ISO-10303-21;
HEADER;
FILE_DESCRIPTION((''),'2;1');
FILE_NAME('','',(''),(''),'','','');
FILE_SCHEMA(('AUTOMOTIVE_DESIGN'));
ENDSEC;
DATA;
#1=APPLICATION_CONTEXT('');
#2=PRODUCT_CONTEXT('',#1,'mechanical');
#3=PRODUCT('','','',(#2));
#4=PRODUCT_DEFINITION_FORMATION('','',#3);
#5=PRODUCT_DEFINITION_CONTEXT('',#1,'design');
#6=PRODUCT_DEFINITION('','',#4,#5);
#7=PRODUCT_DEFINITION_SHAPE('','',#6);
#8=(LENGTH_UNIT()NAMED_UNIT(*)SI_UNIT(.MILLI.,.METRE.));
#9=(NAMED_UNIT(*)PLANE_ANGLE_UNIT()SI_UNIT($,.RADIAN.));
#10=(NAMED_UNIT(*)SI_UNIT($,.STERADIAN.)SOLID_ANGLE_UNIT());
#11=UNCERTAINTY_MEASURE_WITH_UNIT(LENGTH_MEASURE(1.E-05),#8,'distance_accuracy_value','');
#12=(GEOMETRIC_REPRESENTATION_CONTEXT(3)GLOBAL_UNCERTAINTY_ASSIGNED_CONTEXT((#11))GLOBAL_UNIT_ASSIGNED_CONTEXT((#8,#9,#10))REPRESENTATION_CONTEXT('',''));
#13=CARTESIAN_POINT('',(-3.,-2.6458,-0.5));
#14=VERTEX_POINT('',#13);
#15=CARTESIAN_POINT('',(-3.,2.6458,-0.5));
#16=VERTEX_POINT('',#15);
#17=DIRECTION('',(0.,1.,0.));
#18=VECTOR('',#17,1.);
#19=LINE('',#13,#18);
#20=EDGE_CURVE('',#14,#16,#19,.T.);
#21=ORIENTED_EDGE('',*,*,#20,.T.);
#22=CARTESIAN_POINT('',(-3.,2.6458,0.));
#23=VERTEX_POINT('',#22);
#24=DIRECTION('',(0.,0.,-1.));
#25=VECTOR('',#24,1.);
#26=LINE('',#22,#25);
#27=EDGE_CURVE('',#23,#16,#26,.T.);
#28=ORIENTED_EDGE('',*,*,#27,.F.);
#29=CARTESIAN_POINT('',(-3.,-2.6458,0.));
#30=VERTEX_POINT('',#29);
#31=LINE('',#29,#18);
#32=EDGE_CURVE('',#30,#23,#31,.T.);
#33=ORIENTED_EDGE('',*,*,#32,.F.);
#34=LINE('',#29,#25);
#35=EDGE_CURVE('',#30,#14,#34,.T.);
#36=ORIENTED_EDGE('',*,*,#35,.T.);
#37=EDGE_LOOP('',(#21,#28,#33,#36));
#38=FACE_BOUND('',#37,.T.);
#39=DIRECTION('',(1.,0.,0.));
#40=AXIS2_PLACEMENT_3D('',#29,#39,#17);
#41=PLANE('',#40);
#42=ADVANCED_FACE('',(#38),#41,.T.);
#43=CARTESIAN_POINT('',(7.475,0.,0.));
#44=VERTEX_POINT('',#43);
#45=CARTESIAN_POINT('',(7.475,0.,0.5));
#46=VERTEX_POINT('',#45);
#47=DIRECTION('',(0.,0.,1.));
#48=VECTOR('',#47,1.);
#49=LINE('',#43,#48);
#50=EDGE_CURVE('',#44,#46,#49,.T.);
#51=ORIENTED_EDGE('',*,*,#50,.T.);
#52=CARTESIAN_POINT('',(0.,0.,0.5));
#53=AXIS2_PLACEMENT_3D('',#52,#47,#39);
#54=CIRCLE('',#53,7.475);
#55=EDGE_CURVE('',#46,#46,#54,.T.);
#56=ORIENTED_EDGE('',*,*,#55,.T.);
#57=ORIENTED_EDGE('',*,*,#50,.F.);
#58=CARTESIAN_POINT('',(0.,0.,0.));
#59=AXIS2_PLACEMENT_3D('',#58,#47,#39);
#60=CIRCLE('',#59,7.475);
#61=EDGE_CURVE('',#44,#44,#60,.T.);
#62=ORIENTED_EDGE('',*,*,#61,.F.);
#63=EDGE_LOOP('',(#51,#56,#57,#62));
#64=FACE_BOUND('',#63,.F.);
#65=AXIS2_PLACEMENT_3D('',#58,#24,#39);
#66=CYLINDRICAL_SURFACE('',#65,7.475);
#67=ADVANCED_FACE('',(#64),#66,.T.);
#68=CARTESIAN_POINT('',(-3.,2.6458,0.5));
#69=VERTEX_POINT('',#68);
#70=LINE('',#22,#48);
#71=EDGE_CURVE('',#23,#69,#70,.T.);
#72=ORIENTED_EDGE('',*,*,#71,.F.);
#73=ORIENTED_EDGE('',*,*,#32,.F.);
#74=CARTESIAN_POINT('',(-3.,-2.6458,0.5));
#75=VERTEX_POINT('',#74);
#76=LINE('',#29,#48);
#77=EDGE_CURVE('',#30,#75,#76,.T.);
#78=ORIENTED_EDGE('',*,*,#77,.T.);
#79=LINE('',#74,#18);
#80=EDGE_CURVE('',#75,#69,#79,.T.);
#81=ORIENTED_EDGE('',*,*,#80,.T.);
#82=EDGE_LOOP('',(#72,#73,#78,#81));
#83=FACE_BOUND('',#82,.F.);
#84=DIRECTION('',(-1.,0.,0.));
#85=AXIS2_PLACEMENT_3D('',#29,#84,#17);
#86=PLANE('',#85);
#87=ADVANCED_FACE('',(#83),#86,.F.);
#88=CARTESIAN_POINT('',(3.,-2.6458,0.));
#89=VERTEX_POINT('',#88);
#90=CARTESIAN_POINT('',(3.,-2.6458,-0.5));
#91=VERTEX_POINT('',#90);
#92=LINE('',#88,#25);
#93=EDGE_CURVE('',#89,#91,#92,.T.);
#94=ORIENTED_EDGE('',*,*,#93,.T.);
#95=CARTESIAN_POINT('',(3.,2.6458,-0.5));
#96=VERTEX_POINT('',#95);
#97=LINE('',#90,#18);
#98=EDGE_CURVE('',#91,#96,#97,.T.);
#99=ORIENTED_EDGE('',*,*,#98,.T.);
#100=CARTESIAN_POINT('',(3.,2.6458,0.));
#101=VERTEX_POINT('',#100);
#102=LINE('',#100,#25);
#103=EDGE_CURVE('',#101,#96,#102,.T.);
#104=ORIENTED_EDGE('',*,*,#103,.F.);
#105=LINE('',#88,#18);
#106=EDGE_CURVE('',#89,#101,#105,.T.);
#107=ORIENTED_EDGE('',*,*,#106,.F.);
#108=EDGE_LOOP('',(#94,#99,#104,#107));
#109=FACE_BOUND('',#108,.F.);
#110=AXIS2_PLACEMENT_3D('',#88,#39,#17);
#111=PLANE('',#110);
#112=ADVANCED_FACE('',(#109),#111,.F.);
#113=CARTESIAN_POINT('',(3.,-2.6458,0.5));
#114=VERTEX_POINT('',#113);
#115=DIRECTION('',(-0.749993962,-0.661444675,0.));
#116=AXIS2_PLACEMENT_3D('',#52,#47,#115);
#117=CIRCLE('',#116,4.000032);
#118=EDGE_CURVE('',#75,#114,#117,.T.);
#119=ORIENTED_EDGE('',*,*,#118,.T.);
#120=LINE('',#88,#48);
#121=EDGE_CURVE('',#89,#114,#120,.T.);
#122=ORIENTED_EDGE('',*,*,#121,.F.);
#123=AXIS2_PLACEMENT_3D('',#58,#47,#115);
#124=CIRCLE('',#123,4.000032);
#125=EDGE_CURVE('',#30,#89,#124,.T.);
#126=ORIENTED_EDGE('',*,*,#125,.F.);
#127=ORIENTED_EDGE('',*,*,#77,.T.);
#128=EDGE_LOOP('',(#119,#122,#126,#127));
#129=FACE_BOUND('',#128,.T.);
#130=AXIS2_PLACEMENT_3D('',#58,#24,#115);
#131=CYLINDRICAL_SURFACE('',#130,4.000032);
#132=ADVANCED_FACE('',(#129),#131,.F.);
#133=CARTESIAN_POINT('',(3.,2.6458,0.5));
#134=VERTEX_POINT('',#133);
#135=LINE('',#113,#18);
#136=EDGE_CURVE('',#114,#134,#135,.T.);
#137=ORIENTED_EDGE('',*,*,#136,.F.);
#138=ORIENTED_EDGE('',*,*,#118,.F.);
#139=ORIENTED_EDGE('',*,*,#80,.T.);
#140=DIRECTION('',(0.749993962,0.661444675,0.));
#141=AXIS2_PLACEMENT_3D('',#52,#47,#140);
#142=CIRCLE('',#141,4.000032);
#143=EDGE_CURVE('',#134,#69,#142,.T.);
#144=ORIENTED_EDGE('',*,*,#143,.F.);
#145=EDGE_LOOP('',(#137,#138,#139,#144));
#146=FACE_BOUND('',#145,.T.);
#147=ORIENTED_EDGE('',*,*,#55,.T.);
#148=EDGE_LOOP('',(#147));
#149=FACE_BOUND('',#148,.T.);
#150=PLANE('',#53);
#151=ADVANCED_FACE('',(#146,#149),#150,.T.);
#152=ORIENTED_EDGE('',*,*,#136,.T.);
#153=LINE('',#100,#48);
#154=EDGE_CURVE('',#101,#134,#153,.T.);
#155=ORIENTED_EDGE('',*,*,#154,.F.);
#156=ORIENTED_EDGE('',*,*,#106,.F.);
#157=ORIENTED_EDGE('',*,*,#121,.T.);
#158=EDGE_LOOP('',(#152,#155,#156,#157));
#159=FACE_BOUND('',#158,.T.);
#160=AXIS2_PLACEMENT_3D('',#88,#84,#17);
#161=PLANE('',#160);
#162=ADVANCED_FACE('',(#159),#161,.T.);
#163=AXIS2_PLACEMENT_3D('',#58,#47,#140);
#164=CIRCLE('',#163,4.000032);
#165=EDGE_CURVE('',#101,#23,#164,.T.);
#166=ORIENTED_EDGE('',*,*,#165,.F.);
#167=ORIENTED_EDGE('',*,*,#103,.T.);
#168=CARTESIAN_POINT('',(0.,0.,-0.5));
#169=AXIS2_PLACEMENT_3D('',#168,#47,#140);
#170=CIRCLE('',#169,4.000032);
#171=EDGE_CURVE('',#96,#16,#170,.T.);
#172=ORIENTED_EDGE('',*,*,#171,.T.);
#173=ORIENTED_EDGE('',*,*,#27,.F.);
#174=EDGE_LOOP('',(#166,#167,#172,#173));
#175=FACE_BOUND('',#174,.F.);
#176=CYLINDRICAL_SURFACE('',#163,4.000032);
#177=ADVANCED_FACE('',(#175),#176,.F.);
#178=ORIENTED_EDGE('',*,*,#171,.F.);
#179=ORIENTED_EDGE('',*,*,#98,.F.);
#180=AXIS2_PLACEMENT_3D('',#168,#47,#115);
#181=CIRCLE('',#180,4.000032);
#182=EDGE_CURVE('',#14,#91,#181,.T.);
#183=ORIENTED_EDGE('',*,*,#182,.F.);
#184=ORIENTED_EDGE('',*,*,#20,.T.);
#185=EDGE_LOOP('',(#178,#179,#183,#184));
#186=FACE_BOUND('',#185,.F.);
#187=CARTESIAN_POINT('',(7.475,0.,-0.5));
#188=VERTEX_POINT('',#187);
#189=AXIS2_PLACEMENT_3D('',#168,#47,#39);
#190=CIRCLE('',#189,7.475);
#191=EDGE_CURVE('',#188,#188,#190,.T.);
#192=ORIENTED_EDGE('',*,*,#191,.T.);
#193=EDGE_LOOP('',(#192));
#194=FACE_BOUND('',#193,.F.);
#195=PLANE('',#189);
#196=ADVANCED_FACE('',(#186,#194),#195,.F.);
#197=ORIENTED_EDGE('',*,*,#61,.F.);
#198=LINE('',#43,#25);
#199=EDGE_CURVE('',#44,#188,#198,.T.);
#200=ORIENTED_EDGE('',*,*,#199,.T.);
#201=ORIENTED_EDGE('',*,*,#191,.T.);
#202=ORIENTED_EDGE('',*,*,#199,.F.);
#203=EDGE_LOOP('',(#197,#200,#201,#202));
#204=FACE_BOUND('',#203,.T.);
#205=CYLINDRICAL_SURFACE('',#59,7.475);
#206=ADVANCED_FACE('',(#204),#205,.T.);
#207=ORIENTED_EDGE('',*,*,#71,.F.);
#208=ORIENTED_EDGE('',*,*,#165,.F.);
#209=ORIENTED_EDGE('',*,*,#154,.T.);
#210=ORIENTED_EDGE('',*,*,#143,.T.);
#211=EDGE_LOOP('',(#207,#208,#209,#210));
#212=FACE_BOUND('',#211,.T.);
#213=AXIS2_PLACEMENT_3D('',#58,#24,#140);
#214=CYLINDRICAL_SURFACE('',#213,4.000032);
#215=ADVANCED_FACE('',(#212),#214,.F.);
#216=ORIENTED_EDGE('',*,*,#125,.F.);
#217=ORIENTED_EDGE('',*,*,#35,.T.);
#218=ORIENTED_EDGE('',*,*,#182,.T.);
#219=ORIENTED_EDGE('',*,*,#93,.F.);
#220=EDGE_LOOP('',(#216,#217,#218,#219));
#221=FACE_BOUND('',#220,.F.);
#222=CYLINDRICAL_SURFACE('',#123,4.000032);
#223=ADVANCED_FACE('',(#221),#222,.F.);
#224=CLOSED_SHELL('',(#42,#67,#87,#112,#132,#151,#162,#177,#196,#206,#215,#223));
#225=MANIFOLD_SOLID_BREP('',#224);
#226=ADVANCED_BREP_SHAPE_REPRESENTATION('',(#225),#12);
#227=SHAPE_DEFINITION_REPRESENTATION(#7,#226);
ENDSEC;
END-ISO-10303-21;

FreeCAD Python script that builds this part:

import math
import FreeCAD as App
import Part
import Sketcher

V = App.Vector

doc = App.newDocument("Part")
params = doc.addObject("Spreadsheet::Sheet", "Params")
for row, (alias, value) in enumerate([
    ("sketch1_radius", "4 mm"),
    ("sketch1_diameter", "14.95 mm"),
    ("pad1_length", "1 mm"),
], start=1):
    params.set(f"A{row}", alias)
    params.set(f"B{row}", "=" + value)
    params.setAlias(f"B{row}", alias)

body = doc.addObject("PartDesign::Body", "Body")

# Sketch on XY plane
sketch1 = doc.addObject("Sketcher::SketchObject", "Sketch")
body.addObject(sketch1)
sketch1.AttachmentSupport = (doc.XY_Plane, [""])
sketch1.MapMode = "FlatFace"
sketch1.addGeometry([
    Part.Circle(V(0, 0, 0), V(0, 0, 1), 7.5),  # 0
    Part.ArcOfCircle(Part.Circle(V(0, 0, 0), V(0, 0, 1), 4), math.radians(-139), math.radians(-41)),  # 1
    Part.LineSegment(V(-3, -2.6, 0), V(-3, 2.6, 0)),  # 2
    Part.ArcOfCircle(Part.Circle(V(0, 0, 0), V(0, 0, 1), 4), math.radians(41), math.radians(139)),  # 3
    Part.LineSegment(V(3, 2.6, 0), V(3, -2.6, 0)),  # 4
], False)
sketch1.addConstraint([
    Sketcher.Constraint("Coincident", 1, 1, 2, 1),
    Sketcher.Constraint("Coincident", 2, 2, 3, 2),
    Sketcher.Constraint("Coincident", 3, 1, 4, 1),
    Sketcher.Constraint("Coincident", 4, 2, 1, 2),
    Sketcher.Constraint("Vertical", 2),
    Sketcher.Constraint("Vertical", 4),
    Sketcher.Constraint("Coincident", 0, 3, -1, 1),
    Sketcher.Constraint("Coincident", 1, 3, -1, 1),
    Sketcher.Constraint("Coincident", 3, 3, -1, 1),
    Sketcher.Constraint("Equal", 1, 3),
    Sketcher.Constraint("Horizontal", 2, 2, 3, 1),
    Sketcher.Constraint("Radius", 1, 4.0),
    Sketcher.Constraint("Diameter", 0, 14.95),
    Sketcher.Constraint("DistanceX", 1, 1, -1, 1, 3.0),
])
sketch1.setExpression("Constraints[11]", "Params.sketch1_radius")
sketch1.setExpression("Constraints[12]", "Params.sketch1_diameter")
pad1 = doc.addObject("PartDesign::Pad", "Pad")
body.addObject(pad1)
pad1.Profile = sketch1
pad1.setExpression("Length", "Params.pad1_length")
pad1.Midplane = True

doc.recompute()
